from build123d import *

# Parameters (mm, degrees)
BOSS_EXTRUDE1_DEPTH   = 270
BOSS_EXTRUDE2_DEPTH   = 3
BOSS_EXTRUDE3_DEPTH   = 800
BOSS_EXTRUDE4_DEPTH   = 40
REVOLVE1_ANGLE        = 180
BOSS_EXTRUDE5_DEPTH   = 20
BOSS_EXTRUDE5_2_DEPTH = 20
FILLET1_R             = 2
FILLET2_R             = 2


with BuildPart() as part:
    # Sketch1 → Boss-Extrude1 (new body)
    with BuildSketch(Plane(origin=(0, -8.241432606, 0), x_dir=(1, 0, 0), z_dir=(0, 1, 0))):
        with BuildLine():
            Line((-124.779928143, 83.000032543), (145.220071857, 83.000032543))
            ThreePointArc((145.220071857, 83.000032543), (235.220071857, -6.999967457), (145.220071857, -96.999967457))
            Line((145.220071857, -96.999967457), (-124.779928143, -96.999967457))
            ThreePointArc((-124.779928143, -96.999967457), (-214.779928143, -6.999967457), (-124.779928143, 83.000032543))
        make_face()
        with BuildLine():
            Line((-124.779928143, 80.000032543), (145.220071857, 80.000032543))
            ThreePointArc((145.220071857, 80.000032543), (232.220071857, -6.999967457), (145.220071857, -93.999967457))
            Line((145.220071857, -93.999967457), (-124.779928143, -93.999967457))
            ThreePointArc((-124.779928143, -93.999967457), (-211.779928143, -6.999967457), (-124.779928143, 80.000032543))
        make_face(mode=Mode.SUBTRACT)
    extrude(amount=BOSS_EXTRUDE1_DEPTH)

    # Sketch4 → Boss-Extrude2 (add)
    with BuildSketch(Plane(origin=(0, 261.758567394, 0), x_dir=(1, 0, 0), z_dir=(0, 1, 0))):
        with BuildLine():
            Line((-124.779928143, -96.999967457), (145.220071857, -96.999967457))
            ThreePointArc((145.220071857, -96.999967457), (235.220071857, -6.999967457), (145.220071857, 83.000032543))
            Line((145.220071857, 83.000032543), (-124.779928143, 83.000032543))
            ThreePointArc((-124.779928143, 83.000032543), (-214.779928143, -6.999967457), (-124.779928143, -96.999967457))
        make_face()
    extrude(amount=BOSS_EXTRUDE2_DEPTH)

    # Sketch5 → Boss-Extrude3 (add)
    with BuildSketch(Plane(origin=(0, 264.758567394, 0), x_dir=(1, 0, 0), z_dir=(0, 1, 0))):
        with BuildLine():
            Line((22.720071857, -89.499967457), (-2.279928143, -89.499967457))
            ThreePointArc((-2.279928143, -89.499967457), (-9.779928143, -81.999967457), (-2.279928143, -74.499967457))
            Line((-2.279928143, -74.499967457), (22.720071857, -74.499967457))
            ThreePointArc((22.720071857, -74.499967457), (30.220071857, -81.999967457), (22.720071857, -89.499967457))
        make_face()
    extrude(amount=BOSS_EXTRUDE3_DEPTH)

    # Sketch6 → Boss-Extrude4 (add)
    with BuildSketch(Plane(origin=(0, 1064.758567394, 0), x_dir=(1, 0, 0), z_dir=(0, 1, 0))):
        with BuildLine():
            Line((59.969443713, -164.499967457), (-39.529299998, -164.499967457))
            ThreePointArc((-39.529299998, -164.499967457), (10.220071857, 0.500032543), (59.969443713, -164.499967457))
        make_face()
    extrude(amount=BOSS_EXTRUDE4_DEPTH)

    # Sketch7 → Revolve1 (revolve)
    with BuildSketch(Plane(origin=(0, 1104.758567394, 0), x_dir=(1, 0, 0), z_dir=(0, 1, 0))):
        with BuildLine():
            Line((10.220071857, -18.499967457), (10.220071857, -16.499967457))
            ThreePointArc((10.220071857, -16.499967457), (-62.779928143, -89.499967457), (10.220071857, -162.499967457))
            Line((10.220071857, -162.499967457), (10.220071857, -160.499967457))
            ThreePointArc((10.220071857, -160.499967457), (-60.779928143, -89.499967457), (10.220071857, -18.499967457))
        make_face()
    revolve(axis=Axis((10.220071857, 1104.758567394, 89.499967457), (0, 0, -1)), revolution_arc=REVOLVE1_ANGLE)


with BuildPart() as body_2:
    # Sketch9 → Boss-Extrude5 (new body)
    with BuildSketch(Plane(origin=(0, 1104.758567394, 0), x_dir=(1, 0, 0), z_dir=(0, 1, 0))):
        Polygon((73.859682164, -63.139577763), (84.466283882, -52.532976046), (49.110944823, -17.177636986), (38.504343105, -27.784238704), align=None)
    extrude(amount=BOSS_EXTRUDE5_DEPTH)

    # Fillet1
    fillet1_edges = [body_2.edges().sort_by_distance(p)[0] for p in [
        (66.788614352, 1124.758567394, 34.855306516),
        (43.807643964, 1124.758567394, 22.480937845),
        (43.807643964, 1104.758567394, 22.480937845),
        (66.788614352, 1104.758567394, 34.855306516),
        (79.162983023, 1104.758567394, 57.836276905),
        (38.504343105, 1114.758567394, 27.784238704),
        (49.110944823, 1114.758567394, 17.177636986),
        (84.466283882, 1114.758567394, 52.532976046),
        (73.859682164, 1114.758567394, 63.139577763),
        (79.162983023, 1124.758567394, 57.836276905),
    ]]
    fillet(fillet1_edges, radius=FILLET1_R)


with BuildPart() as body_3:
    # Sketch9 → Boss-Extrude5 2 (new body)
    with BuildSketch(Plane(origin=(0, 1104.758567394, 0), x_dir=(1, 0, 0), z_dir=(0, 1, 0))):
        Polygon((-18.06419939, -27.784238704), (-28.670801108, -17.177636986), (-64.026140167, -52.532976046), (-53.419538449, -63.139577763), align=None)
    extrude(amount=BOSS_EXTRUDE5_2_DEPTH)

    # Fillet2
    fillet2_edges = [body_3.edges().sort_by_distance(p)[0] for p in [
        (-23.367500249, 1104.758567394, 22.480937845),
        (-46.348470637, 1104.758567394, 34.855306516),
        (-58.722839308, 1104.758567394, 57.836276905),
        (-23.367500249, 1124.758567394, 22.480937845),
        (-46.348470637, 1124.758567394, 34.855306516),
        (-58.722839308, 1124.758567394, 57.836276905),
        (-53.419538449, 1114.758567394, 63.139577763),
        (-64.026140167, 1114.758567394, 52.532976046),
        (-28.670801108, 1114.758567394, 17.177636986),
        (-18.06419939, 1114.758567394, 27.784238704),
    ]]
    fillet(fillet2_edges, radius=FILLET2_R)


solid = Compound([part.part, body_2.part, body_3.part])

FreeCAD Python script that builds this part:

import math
import FreeCAD as App
import Part
import Sketcher

V = App.Vector
Q = App.Units.Quantity


def edges_at(feature, points):
    """Names of the edges that pass closest to the given points."""
    edges = feature.Shape.Edges
    near = lambda p: min(range(len(edges)), key=lambda i: edges[i].distToShape(Part.Vertex(*p))[0])
    return sorted({f"Edge{near(p) + 1}" for p in points})


def add_polygon(sketch, points):
    """Adds a closed chain of lines whose ends are joined by coincident constraints."""
    first, n = sketch.GeometryCount, len(points)
    for a, b in zip(points, points[1:] + points[:1]):
        sketch.addGeometry(Part.LineSegment(App.Vector(*a, 0), App.Vector(*b, 0)), False)
    for i in range(n):
        sketch.addConstraint(Sketcher.Constraint("Coincident", first + i, 2, first + (i + 1) % n, 1))

doc = App.newDocument("Part")
body = doc.addObject("PartDesign::Body", "Body")

# Sketch on XZ plane
sketch1 = doc.addObject("Sketcher::SketchObject", "Sketch")
body.addObject(sketch1)
sketch1.AttachmentSupport = (doc.XZ_Plane, [""])
sketch1.MapMode = "FlatFace"
sketch1.AttachmentOffset = App.Placement(V(0, 0, 8.241433), App.Rotation())
sketch1.addGeometry(Part.LineSegment(V(145.220072, -83.000033, 0), V(-124.779928, -83.000033, 0)), False)
sketch1.addGeometry(Part.ArcOfCircle(Part.Circle(V(-124.779928, 6.999967, 0), V(0, 0, 1), 90), math.radians(90), math.radians(270)), False)
sketch1.addGeometry(Part.LineSegment(V(-124.779928, 96.999967, 0), V(145.220072, 96.999967, 0)), False)
sketch1.addGeometry(Part.ArcOfCircle(Part.Circle(V(145.220072, 6.999967, 0), V(0, 0, 1), 90), math.radians(-90), math.radians(90)), False)
sketch1.addGeometry(Part.LineSegment(V(-124.779928, -80.000033, 0), V(145.220072, -80.000033, 0)), False)
sketch1.addGeometry(Part.ArcOfCircle(Part.Circle(V(145.220072, 6.999967, 0), V(0, 0, 1), 87), math.radians(-90), math.radians(90)), False)
sketch1.addGeometry(Part.LineSegment(V(145.220072, 93.999967, 0), V(-124.779928, 93.999967, 0)), False)
sketch1.addGeometry(Part.ArcOfCircle(Part.Circle(V(-124.779928, 6.999967, 0), V(0, 0, 1), 87), math.radians(90), math.radians(270)), False)
sketch1.addConstraint(Sketcher.Constraint("Tangent", 0, 2, 1, 2))
sketch1.addConstraint(Sketcher.Constraint("Tangent", 1, 1, 2, 1))
sketch1.addConstraint(Sketcher.Constraint("Tangent", 2, 2, 3, 2))
sketch1.addConstraint(Sketcher.Constraint("Tangent", 3, 1, 0, 1))
sketch1.addConstraint(Sketcher.Constraint("Tangent", 4, 2, 5, 1))
sketch1.addConstraint(Sketcher.Constraint("Tangent", 5, 2, 6, 1))
sketch1.addConstraint(Sketcher.Constraint("Tangent", 6, 2, 7, 1))
sketch1.addConstraint(Sketcher.Constraint("Tangent", 7, 2, 4, 1))
sketch1.addConstraint(Sketcher.Constraint("Horizontal", 0))
sketch1.addConstraint(Sketcher.Constraint("Horizontal", 2))
sketch1.addConstraint(Sketcher.Constraint("Horizontal", 4))
sketch1.addConstraint(Sketcher.Constraint("Horizontal", 6))
sketch1.addConstraint(Sketcher.Constraint("Coincident", 5, 3, 3, 3))
sketch1.addConstraint(Sketcher.Constraint("Vertical", 7, 3, 0, 2))
sketch1.addConstraint(Sketcher.Constraint("Radius", 1, Q("90 mm")))
sketch1.addConstraint(Sketcher.Constraint("Radius", 5, Q("87 mm")))
sketch1.addConstraint(Sketcher.Constraint("DistanceX", 0, 2, 0, 1, Q("270 mm")))
sketch1.addConstraint(Sketcher.Constraint("DistanceX", 1, 3, -1, 1, Q("124.779928 mm")))
sketch1.addConstraint(Sketcher.Constraint("DistanceY", -1, 1, 1, 3, Q("6.999967 mm")))
pad1 = doc.addObject("PartDesign::Pad", "Pad")
body.addObject(pad1)
pad1.Profile = sketch1
pad1.Length = 270
pad1.Reversed = True

# Sketch on XZ plane
sketch2 = doc.addObject("Sketcher::SketchObject", "Sketch001")
body.addObject(sketch2)
sketch2.AttachmentSupport = (doc.XZ_Plane, [""])
sketch2.MapMode = "FlatFace"
sketch2.AttachmentOffset = App.Placement(V(0, 0, -261.758567), App.Rotation())
sketch2.addGeometry(Part.LineSegment(V(-124.779928, 96.999967, 0), V(145.220072, 96.999967, 0)), False)
sketch2.addGeometry(Part.ArcOfCircle(Part.Circle(V(145.220072, 6.999967, 0), V(0, 0, 1), 90), math.radians(-90), math.radians(90)), False)
sketch2.addGeometry(Part.LineSegment(V(145.220072, -83.000033, 0), V(-124.779928, -83.000033, 0)), False)
sketch2.addGeometry(Part.ArcOfCircle(Part.Circle(V(-124.779928, 6.999967, 0), V(0, 0, 1), 90), math.radians(90), math.radians(270)), False)
sketch2.addConstraint(Sketcher.Constraint("Tangent", 0, 2, 1, 2))
sketch2.addConstraint(Sketcher.Constraint("Tangent", 1, 1, 2, 1))
sketch2.addConstraint(Sketcher.Constraint("Tangent", 2, 2, 3, 2))
sketch2.addConstraint(Sketcher.Constraint("Tangent", 3, 1, 0, 1))
sketch2.addConstraint(Sketcher.Constraint("Horizontal", 0))
sketch2.addConstraint(Sketcher.Constraint("Horizontal", 2))
sketch2.addConstraint(Sketcher.Constraint("Radius", 1, Q("90 mm")))
sketch2.addConstraint(Sketcher.Constraint("DistanceX", 0, 1, 0, 2, Q("270 mm")))
sketch2.addConstraint(Sketcher.Constraint("DistanceX", -1, 1, 1, 3, Q("145.220072 mm")))
sketch2.addConstraint(Sketcher.Constraint("DistanceY", -1, 1, 1, 3, Q("6.999967 mm")))
pad2 = doc.addObject("PartDesign::Pad", "Pad001")
body.addObject(pad2)
pad2.Profile = sketch2
pad2.Length = 3
pad2.Reversed = True

# Sketch on XZ plane
sketch3 = doc.addObject("Sketcher::SketchObject", "Sketch002")
body.addObject(sketch3)
sketch3.AttachmentSupport = (doc.XZ_Plane, [""])
sketch3.MapMode = "FlatFace"
sketch3.AttachmentOffset = App.Placement(V(0, 0, -264.758567), App.Rotation())
sketch3.addGeometry(Part.LineSegment(V(-2.279928, 89.499967, 0), V(22.720072, 89.499967, 0)), False)
sketch3.addGeometry(Part.ArcOfCircle(Part.Circle(V(22.720072, 81.999967, 0), V(0, 0, 1), 7.5), math.radians(-90), math.radians(90)), False)
sketch3.addGeometry(Part.LineSegment(V(22.720072, 74.499967, 0), V(-2.279928, 74.499967, 0)), False)
sketch3.addGeometry(Part.ArcOfCircle(Part.Circle(V(-2.279928, 81.999967, 0), V(0, 0, 1), 7.5), math.radians(90), math.radians(270)), False)
sketch3.addConstraint(Sketcher.Constraint("Tangent", 0, 2, 1, 2))
sketch3.addConstraint(Sketcher.Constraint("Tangent", 1, 1, 2, 1))
sketch3.addConstraint(Sketcher.Constraint("Tangent", 2, 2, 3, 2))
sketch3.addConstraint(Sketcher.Constraint("Tangent", 3, 1, 0, 1))
sketch3.addConstraint(Sketcher.Constraint("Horizontal", 0))
sketch3.addConstraint(Sketcher.Constraint("Horizontal", 2))
sketch3.addConstraint(Sketcher.Constraint("Radius", 1, Q("7.5 mm")))
sketch3.addConstraint(Sketcher.Constraint("DistanceX", 0, 1, 0, 2, Q("25 mm")))
sketch3.addConstraint(Sketcher.Constraint("DistanceX", -1, 1, 1, 3, Q("22.720072 mm")))
sketch3.addConstraint(Sketcher.Constraint("DistanceY", -1, 1, 1, 3, Q("81.999967 mm")))
pad3 = doc.addObject("PartDesign::Pad", "Pad002")
body.addObject(pad3)
pad3.Profile = sketch3
pad3.Length = 800
pad3.Reversed = True

# Sketch on XZ plane
sketch4 = doc.addObject("Sketcher::SketchObject", "Sketch003")
body.addObject(sketch4)
sketch4.AttachmentSupport = (doc.XZ_Plane, [""])
sketch4.MapMode = "FlatFace"
sketch4.AttachmentOffset = App.Placement(V(0, 0, -1064.758567), App.Rotation())
sketch4.addGeometry(Part.LineSegment(V(-39.5293, 164.499967, 0), V(59.969444, 164.499967, 0)), False)
sketch4.addGeometry(Part.ArcOfCircle(Part.Circle(V(10.220072, 89.499967, 0), V(0, 0, 1), 90), math.radians(123.55731), math.radians(416.44269)), False)
sketch4.addConstraint(Sketcher.Constraint("Coincident", 0, 1, 1, 1))
sketch4.addConstraint(Sketcher.Constraint("Coincident", 1, 2, 0, 2))
sketch4.addConstraint(Sketcher.Constraint("Horizontal", 0))
sketch4.addConstraint(Sketcher.Constraint("Radius", 1, Q("90 mm")))
sketch4.addConstraint(Sketcher.Constraint("DistanceY", 1, 3, 0, 1, Q("75 mm")))
sketch4.addConstraint(Sketcher.Constraint("DistanceX", 0, 1, -1, 1, Q("39.5293 mm")))
sketch4.addConstraint(Sketcher.Constraint("DistanceY", -1, 1, 1, 3, Q("89.499967 mm")))
pad4 = doc.addObject("PartDesign::Pad", "Pad003")
body.addObject(pad4)
pad4.Profile = sketch4
pad4.Length = 40
pad4.Reversed = True

# Sketch on XZ plane
sketch5 = doc.addObject("Sketcher::SketchObject", "Sketch004")
body.addObject(sketch5)
sketch5.AttachmentSupport = (doc.XZ_Plane, [""])
sketch5.MapMode = "FlatFace"
sketch5.AttachmentOffset = App.Placement(V(0, 0, -1104.758567), App.Rotation())
sketch5.addGeometry(Part.LineSegment(V(10.220072, 18.499967, 0), V(10.220072, 16.499967, 0)), False)
sketch5.addGeometry(Part.ArcOfCircle(Part.Circle(V(10.220072, 89.499967, 0), V(0, 0, 1), 73), math.radians(90), math.radians(270)), False)
sketch5.addGeometry(Part.LineSegment(V(10.220072, 162.499967, 0), V(10.220072, 160.499967, 0)), False)
sketch5.addGeometry(Part.ArcOfCircle(Part.Circle(V(10.220072, 89.499967, 0), V(0, 0, 1), 71), math.radians(90), math.radians(270)), False)
sketch5.addGeometry(Part.LineSegment(V(10.220072, 162.499967, 0), V(10.220072, 16.499967, 0)), True)  # axis
sketch5.addConstraint(Sketcher.Constraint("Coincident", 0, 2, 1, 2))
sketch5.addConstraint(Sketcher.Constraint("Coincident", 1, 1, 2, 1))
sketch5.addConstraint(Sketcher.Constraint("Coincident", 2, 2, 3, 1))
sketch5.addConstraint(Sketcher.Constraint("Coincident", 3, 2, 0, 1))
sketch5.addConstraint(Sketcher.Constraint("Vertical", 0))
sketch5.addConstraint(Sketcher.Constraint("Vertical", 2))
sketch5.addConstraint(Sketcher.Constraint("Vertical", 4))
sketch5.addConstraint(Sketcher.Constraint("Coincident", 3, 3, 1, 3))
sketch5.addConstraint(Sketcher.Constraint("Coincident", 4, 1, 1, 1))
sketch5.addConstraint(Sketcher.Constraint("Coincident", 4, 2, 0, 2))
sketch5.addConstraint(Sketcher.Constraint("Vertical", 3, 3, 0, 2))
sketch5.addConstraint(Sketcher.Constraint("Radius", 1, Q("73 mm")))
sketch5.addConstraint(Sketcher.Constraint("Radius", 3, Q("71 mm")))
sketch5.addConstraint(Sketcher.Constraint("DistanceX", -1, 1, 1, 3, Q("10.220072 mm")))
sketch5.addConstraint(Sketcher.Constraint("DistanceY", -1, 1, 1, 3, Q("89.499967 mm")))
revolution = doc.addObject("PartDesign::Revolution", "Revolution")
body.addObject(revolution)
revolution.Profile = sketch5
revolution.ReferenceAxis = (sketch5, ["Axis0"])
revolution.Angle = 180
body2 = doc.addObject("PartDesign::Body", "Body001")

# Sketch on XZ plane
sketch6 = doc.addObject("Sketcher::SketchObject", "Sketch005")
body2.addObject(sketch6)
sketch6.AttachmentSupport = (doc.getObject("XZ_Plane001"), [""])
sketch6.MapMode = "FlatFace"
sketch6.AttachmentOffset = App.Placement(V(0, 0, -1104.758567), App.Rotation())
add_polygon(sketch6, [(73.859682, 63.139578), (84.466284, 52.532976), (49.110945, 17.177637), (38.504343, 27.784239)])  # lines 0-3
sketch6.addConstraint(Sketcher.Constraint("Perpendicular", 0, 1))
sketch6.addConstraint(Sketcher.Constraint("Perpendicular", 1, 2))
sketch6.addConstraint(Sketcher.Constraint("Perpendicular", 2, 3))
sketch6.addConstraint(Sketcher.Constraint("Angle", 0, Q("-45 deg")))
sketch6.addConstraint(Sketcher.Constraint("Distance", 0, Q("15 mm")))
sketch6.addConstraint(Sketcher.Constraint("Distance", 1, Q("50 mm")))
sketch6.addConstraint(Sketcher.Constraint("DistanceY", -1, 1, 2, 2, Q("27.784239 mm")))
sketch6.addConstraint(Sketcher.Constraint("DistanceX", -1, 1, 0, 2, Q("84.466284 mm")))
pad5 = doc.addObject("PartDesign::Pad", "Pad004")
body2.addObject(pad5)
pad5.Profile = sketch6
pad5.Length = 20
pad5.Reversed = True
doc.recompute()

fillet = doc.addObject("PartDesign::Fillet", "Fillet")
body2.addObject(fillet)
fillet.Base = (pad5, edges_at(pad5, [
    (66.789, 1124.759, 34.855),
    (43.808, 1124.759, 22.481),
    (43.808, 1104.759, 22.481),
    (66.789, 1104.759, 34.855),
    (79.163, 1104.759, 57.836),
    (38.504, 1114.759, 27.784),
    (49.111, 1114.759, 17.178),
    (84.466, 1114.759, 52.533),
    (73.86, 1114.759, 63.14),
    (79.163, 1124.759, 57.836),
]))
fillet.Radius = 2
body3 = doc.addObject("PartDesign::Body", "Body002")

# Sketch on XZ plane
sketch7 = doc.addObject("Sketcher::SketchObject", "Sketch006")
body3.addObject(sketch7)
sketch7.AttachmentSupport = (doc.getObject("XZ_Plane002"), [""])
sketch7.MapMode = "FlatFace"
sketch7.AttachmentOffset = App.Placement(V(0, 0, -1104.758567), App.Rotation())
add_polygon(sketch7, [(-18.064199, 27.784239), (-28.670801, 17.177637), (-64.02614, 52.532976), (-53.419538, 63.139578)])  # lines 0-3
sketch7.addConstraint(Sketcher.Constraint("Perpendicular", 0, 1))
sketch7.addConstraint(Sketcher.Constraint("Perpendicular", 1, 2))
sketch7.addConstraint(Sketcher.Constraint("Perpendicular", 2, 3))
sketch7.addConstraint(Sketcher.Constraint("Angle", 0, Q("-135 deg")))
sketch7.addConstraint(Sketcher.Constraint("Distance", 0, Q("15 mm")))
sketch7.addConstraint(Sketcher.Constraint("Distance", 1, Q("50 mm")))
sketch7.addConstraint(Sketcher.Constraint("DistanceX", 0, 2, -1, 1, Q("28.670801 mm")))
sketch7.addConstraint(Sketcher.Constraint("DistanceY", -1, 1, 3, 2, Q("27.784239 mm")))
pad6 = doc.addObject("PartDesign::Pad", "Pad005")
body3.addObject(pad6)
pad6.Profile = sketch7
pad6.Length = 20
pad6.Reversed = True
doc.recompute()

fillet2 = doc.addObject("PartDesign::Fillet", "Fillet001")
body3.addObject(fillet2)
fillet2.Base = (pad6, edges_at(pad6, [
    (-23.368, 1104.759, 22.481),
    (-46.348, 1104.759, 34.855),
    (-58.723, 1104.759, 57.836),
    (-23.368, 1124.759, 22.481),
    (-46.348, 1124.759, 34.855),
    (-58.723, 1124.759, 57.836),
    (-53.42, 1114.759, 63.14),
    (-64.026, 1114.759, 52.533),
    (-28.671, 1114.759, 17.178),
    (-18.064, 1114.759, 27.784),
]))
fillet2.Radius = 2

doc.recompute()
